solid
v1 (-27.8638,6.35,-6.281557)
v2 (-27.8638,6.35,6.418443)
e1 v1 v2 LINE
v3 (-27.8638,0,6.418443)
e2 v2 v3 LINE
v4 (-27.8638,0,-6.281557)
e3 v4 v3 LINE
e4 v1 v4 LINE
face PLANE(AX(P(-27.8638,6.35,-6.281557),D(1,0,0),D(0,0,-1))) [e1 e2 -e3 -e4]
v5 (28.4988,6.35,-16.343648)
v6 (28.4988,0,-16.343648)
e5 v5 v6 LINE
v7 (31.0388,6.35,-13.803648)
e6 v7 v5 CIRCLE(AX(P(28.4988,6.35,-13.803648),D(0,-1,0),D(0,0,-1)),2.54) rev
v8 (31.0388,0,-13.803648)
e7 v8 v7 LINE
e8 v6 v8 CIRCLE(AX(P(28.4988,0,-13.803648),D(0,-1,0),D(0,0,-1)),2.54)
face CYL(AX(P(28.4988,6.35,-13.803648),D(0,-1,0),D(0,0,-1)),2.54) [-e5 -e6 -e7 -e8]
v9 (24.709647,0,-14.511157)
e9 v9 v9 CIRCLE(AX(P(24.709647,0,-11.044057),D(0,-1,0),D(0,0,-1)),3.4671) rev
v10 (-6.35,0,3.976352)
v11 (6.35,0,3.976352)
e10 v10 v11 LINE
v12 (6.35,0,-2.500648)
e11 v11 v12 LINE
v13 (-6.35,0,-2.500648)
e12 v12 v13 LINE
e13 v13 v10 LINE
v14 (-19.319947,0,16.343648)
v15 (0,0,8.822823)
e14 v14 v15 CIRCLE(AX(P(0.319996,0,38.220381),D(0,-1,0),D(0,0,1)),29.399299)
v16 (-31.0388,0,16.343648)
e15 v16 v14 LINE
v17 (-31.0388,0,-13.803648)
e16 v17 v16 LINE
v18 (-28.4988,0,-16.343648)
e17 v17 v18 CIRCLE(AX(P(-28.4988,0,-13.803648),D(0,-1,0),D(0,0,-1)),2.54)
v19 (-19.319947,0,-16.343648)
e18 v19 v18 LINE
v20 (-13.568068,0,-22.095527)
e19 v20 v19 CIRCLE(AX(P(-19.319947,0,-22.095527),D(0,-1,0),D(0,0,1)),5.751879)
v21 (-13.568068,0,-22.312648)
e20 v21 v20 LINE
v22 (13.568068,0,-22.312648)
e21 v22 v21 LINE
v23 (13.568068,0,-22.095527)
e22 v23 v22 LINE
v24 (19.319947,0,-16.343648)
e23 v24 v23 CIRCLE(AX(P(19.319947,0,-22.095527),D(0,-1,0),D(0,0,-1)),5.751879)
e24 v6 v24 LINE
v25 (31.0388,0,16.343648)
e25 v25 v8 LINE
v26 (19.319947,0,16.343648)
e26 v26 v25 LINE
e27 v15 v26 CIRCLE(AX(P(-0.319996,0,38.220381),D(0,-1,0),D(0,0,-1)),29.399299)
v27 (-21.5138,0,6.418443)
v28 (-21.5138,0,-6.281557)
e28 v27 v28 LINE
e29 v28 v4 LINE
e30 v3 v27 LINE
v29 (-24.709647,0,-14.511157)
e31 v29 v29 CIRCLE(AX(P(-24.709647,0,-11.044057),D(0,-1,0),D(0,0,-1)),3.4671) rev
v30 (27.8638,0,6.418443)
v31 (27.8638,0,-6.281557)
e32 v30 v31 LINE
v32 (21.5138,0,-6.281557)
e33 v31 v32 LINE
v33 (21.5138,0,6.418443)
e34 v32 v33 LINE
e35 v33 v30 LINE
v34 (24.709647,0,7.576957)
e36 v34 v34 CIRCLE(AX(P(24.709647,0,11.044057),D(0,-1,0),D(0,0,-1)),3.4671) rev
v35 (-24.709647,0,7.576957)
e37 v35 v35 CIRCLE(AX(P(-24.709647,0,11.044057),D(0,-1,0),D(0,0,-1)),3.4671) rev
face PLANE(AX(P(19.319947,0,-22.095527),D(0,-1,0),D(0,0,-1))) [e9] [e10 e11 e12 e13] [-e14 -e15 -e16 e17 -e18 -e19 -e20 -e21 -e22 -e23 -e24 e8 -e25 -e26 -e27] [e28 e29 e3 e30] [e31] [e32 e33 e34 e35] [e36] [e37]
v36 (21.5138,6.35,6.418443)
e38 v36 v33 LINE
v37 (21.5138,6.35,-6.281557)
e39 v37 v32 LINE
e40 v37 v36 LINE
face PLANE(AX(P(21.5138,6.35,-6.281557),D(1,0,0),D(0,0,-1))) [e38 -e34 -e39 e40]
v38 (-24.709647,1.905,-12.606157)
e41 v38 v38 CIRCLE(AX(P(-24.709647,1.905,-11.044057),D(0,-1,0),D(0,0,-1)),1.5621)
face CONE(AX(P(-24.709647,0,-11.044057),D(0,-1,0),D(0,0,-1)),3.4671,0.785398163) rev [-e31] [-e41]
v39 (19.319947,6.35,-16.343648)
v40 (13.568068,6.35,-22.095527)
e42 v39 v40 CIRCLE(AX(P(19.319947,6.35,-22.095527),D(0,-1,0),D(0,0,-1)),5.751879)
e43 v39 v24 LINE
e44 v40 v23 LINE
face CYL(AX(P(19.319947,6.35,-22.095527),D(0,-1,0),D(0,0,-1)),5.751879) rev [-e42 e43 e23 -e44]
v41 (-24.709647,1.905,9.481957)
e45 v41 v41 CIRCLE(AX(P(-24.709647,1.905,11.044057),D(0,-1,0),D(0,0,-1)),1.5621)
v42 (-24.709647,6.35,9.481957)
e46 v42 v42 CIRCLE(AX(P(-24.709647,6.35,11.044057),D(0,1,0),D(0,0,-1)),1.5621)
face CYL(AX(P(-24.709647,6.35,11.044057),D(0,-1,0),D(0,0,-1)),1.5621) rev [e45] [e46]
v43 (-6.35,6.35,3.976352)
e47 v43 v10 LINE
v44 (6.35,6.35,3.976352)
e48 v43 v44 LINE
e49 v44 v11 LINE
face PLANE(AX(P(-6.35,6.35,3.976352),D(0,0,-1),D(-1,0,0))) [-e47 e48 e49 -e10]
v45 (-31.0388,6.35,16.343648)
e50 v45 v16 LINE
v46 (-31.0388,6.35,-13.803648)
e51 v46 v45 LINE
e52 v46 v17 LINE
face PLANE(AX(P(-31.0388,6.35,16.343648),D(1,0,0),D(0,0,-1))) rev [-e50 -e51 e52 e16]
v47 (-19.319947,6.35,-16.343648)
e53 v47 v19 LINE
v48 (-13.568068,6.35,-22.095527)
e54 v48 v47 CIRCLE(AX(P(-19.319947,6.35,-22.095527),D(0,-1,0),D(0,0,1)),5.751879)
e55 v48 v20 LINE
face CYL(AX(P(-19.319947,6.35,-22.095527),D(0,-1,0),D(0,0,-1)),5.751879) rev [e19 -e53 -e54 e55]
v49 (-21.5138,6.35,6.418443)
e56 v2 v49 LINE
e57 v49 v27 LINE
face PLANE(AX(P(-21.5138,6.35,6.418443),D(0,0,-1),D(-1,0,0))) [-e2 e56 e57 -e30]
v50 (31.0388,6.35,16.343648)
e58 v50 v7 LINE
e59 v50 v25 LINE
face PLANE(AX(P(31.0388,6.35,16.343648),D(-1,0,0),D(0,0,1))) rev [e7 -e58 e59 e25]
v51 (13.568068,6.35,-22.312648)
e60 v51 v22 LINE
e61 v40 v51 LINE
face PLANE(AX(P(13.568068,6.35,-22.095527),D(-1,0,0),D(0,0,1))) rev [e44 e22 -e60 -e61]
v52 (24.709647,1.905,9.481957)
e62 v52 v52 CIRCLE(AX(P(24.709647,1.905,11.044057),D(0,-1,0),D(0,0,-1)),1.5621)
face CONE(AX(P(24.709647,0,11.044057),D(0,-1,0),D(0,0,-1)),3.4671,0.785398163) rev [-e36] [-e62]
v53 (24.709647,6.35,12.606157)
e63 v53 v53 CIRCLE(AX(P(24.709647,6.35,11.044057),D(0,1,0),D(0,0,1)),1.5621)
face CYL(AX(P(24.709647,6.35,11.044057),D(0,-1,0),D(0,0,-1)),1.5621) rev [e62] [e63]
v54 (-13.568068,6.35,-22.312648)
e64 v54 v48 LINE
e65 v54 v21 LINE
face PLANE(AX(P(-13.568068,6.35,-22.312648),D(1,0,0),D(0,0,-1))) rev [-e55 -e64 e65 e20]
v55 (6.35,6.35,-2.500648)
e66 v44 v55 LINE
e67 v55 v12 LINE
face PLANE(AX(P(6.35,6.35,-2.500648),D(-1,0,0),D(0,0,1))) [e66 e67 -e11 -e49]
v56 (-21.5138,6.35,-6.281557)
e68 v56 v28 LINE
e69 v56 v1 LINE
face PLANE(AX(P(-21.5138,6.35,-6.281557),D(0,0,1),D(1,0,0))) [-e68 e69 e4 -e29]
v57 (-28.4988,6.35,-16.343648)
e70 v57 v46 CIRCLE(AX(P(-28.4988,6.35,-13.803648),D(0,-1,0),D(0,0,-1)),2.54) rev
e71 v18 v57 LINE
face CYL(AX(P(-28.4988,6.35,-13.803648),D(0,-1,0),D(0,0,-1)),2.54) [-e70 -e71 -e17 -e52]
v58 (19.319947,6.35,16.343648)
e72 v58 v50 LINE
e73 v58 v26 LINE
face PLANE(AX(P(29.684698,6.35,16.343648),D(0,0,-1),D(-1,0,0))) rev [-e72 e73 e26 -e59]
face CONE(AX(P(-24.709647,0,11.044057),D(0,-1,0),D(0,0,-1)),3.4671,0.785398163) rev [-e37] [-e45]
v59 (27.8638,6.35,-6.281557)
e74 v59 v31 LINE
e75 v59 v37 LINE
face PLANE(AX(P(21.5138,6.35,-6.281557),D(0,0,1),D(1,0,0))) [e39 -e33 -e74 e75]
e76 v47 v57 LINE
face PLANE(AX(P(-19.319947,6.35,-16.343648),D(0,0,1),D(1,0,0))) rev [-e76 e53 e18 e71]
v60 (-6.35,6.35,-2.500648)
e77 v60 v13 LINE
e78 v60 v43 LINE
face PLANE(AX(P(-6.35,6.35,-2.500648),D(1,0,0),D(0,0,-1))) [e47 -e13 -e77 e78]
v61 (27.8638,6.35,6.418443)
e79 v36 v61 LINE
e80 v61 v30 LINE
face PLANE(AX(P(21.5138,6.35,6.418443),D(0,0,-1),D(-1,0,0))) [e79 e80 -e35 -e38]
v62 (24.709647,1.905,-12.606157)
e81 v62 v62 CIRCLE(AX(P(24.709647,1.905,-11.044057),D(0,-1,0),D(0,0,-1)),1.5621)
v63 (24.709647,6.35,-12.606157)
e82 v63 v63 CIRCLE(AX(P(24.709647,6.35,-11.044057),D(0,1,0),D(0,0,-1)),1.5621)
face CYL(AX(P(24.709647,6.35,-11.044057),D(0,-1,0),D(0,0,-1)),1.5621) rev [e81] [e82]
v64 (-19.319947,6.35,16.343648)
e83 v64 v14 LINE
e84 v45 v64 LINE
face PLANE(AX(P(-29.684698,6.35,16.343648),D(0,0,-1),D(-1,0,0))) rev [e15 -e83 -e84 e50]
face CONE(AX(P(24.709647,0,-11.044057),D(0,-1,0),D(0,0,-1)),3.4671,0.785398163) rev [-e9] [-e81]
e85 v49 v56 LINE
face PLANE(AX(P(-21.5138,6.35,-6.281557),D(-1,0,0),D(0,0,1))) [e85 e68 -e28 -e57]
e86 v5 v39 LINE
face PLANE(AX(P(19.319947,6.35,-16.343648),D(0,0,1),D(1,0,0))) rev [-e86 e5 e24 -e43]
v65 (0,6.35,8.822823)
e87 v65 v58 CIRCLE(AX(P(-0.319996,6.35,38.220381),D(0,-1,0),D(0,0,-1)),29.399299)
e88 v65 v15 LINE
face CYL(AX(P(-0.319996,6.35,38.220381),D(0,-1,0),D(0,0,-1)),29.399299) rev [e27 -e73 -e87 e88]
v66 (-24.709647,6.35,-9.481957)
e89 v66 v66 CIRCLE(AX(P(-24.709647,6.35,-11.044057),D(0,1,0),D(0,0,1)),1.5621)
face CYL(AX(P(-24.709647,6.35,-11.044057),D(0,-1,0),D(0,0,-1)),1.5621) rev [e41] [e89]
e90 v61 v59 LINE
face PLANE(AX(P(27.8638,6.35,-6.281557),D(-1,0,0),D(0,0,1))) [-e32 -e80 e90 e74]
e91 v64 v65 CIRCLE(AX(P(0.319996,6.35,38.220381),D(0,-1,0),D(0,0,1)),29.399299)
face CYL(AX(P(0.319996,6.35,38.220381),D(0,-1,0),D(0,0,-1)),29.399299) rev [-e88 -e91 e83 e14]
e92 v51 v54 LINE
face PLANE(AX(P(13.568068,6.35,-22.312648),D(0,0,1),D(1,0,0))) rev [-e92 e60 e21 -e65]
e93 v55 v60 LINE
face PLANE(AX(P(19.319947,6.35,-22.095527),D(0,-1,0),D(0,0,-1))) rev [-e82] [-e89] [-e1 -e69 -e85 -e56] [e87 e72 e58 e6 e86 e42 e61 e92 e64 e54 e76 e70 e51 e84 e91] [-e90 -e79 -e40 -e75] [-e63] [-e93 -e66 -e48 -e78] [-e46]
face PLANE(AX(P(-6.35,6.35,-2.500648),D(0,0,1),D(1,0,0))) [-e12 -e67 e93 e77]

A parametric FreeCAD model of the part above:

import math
import FreeCAD as App
import Part
import Sketcher

V = App.Vector
Q = App.Units.Quantity


def edges_at(feature, points):
    """Names of the edges that pass closest to the given points."""
    edges = feature.Shape.Edges
    near = lambda p: min(range(len(edges)), key=lambda i: edges[i].distToShape(Part.Vertex(*p))[0])
    return sorted({f"Edge{near(p) + 1}" for p in points})


def add_polygon(sketch, points):
    """Adds a closed chain of lines whose ends are joined by coincident constraints."""
    first, n = sketch.GeometryCount, len(points)
    for a, b in zip(points, points[1:] + points[:1]):
        sketch.addGeometry(Part.LineSegment(App.Vector(*a, 0), App.Vector(*b, 0)), False)
    for i in range(n):
        sketch.addConstraint(Sketcher.Constraint("Coincident", first + i, 2, first + (i + 1) % n, 1))

doc = App.newDocument("Part")
body = doc.addObject("PartDesign::Body", "Body")

sketch1 = body.newObject("Sketcher::SketchObject", "Sketch")
sketch1.AttachmentSupport = (doc.getObject("XZ_Plane"), [""])
sketch1.MapMode = "FlatFace"
sketch1.addGeometry(Part.LineSegment(V(13.57, -22.31, 0), V(-13.57, -22.31, 0)), False)
sketch1.addGeometry(Part.LineSegment(V(-13.57, -22.31, 0), V(-13.57, -22.1, 0)), False)
sketch1.addGeometry(Part.ArcOfCircle(Part.Circle(V(-19.32, -22.1, 0), V(0, 0, 1), 5.75), math.radians(0), math.radians(90)), False)
sketch1.addGeometry(Part.LineSegment(V(-19.32, -16.34, 0), V(-31.04, -16.34, 0)), False)
sketch1.addGeometry(Part.LineSegment(V(-31.04, -16.34, 0), V(-31.04, 16.34, 0)), False)
sketch1.addGeometry(Part.LineSegment(V(-31.04, 16.34, 0), V(-19.32, 16.34, 0)), False)
sketch1.addGeometry(Part.ArcOfCircle(Part.Circle(V(0.32, 38.22, 0), V(0, 0, 1), 29.4), math.radians(-132), math.radians(-91)), False)
sketch1.addGeometry(Part.ArcOfCircle(Part.Circle(V(-0.32, 38.22, 0), V(0, 0, 1), 29.4), math.radians(-89), math.radians(-48)), False)
sketch1.addGeometry(Part.LineSegment(V(19.32, 16.34, 0), V(31.04, 16.34, 0)), False)
sketch1.addGeometry(Part.LineSegment(V(31.04, 16.34, 0), V(31.04, -16.34, 0)), False)
sketch1.addGeometry(Part.LineSegment(V(31.04, -16.34, 0), V(19.32, -16.34, 0)), False)
sketch1.addGeometry(Part.ArcOfCircle(Part.Circle(V(19.32, -22.1, 0), V(0, 0, 1), 5.75), math.radians(90), math.radians(180)), False)
sketch1.addGeometry(Part.LineSegment(V(13.57, -22.1, 0), V(13.57, -22.31, 0)), False)
sketch1.addGeometry(Part.Circle(V(-24.71, 11.04, 0), V(0, 0, 1), 1.56), False)
add_polygon(sketch1, [(-21.51, 6.42), (-27.86, 6.42), (-27.86, -6.28), (-21.51, -6.28)])
sketch1.addGeometry(Part.Circle(V(24.71, 11.04, 0), V(0, 0, 1), 1.56), False)
add_polygon(sketch1, [(6.35, 3.98), (-6.35, 3.98), (-6.35, -2.5), (6.35, -2.5)])
add_polygon(sketch1, [(27.86, 6.42), (21.51, 6.42), (21.51, -6.28), (27.86, -6.28)])
sketch1.addGeometry(Part.Circle(V(-24.71, -11.04, 0), V(0, 0, 1), 1.56), False)
sketch1.addGeometry(Part.Circle(V(24.71, -11.04, 0), V(0, 0, 1), 1.56), False)
sketch1.addConstraint([
    Sketcher.Constraint("Coincident", 0, 2, 1, 1),
    Sketcher.Constraint("Tangent", 1, 2, 2, 1),
    Sketcher.Constraint("Tangent", 2, 2, 3, 1),
    Sketcher.Constraint("Coincident", 3, 2, 4, 1),
    Sketcher.Constraint("Coincident", 4, 2, 5, 1),
    Sketcher.Constraint("Coincident", 5, 2, 6, 1),
    Sketcher.Constraint("Coincident", 6, 2, 7, 1),
    Sketcher.Constraint("Coincident", 7, 2, 8, 1),
    Sketcher.Constraint("Coincident", 8, 2, 9, 1),
    Sketcher.Constraint("Coincident", 9, 2, 10, 1),
    Sketcher.Constraint("Tangent", 10, 2, 11, 1),
    Sketcher.Constraint("Tangent", 11, 2, 12, 1),
    Sketcher.Constraint("Coincident", 12, 2, 0, 1),
    Sketcher.Constraint("Horizontal", 0),
    Sketcher.Constraint("Vertical", 1),
    Sketcher.Constraint("Horizontal", 3),
    Sketcher.Constraint("Vertical", 4),
    Sketcher.Constraint("Horizontal", 5),
    Sketcher.Constraint("Horizontal", 8),
    Sketcher.Constraint("Vertical", 9),
    Sketcher.Constraint("Horizontal", 10),
    Sketcher.Constraint("Vertical", 12),
    Sketcher.Constraint("Horizontal", 14),
    Sketcher.Constraint("Vertical", 15),
    Sketcher.Constraint("Horizontal", 16),
    Sketcher.Constraint("Vertical", 17),
    Sketcher.Constraint("Horizontal", 19),
    Sketcher.Constraint("Vertical", 20),
    Sketcher.Constraint("Horizontal", 21),
    Sketcher.Constraint("Vertical", 22),
    Sketcher.Constraint("Horizontal", 23),
    Sketcher.Constraint("Vertical", 24),
    Sketcher.Constraint("Horizontal", 25),
    Sketcher.Constraint("Vertical", 26),
    Sketcher.Constraint("Equal", 6, 7),
    Sketcher.Constraint("Equal", 2, 11),
    Sketcher.Constraint("Equal", 13, 18),
    Sketcher.Constraint("Equal", 18, 27),
    Sketcher.Constraint("Equal", 27, 28),
    Sketcher.Constraint("Symmetric", 18, 3, 27, 3, -1, 1),
    Sketcher.Constraint("Symmetric", 13, 3, 28, 3, -1, 1),
    Sketcher.Constraint("Symmetric", 2, 2, 7, 2, -1, 1),
    Sketcher.Constraint("Symmetric", 4, 2, 9, 2, -1, 1),
    Sketcher.Constraint("Symmetric", 6, 3, 7, 3, -2),
    Sketcher.Constraint("Symmetric", 2, 3, 11, 3, -2),
    Sketcher.Constraint("Symmetric", 13, 3, 18, 3, -2),
    Sketcher.Constraint("Symmetric", 17, 2, 23, 2, -2),
    Sketcher.Constraint("Symmetric", 15, 2, 25, 2, -2),
    Sketcher.Constraint("Equal", 21, 15),
    Sketcher.Constraint("Diameter", 13, Q("0.123 in")),
    Sketcher.Constraint("DistanceX", 19, 2, 19, 1, Q("0.5 in")),
    Sketcher.Constraint("DistanceX", 14, 2, 14, 1, Q("0.25 in")),
    Sketcher.Constraint("DistanceY", 20, 2, 20, 1, Q("0.255 in")),
    Sketcher.Constraint("DistanceX", 19, 2, -1, 1, Q("0.25 in")),
    Sketcher.Constraint("Radius", 6, 29.399299),
    Sketcher.Constraint("DistanceX", 3, 2, -1, 1, Q("1.222 in")),
    Sketcher.Constraint("DistanceX", 14, 2, -1, 1, Q("1.097 in")),
    Sketcher.Constraint("Radius", 2, 5.751879),
    Sketcher.Constraint("DistanceY", 0, 2, 2, 2, Q("0.235 in")),
    Sketcher.Constraint("DistanceY", 27, 3, 14, 2, Q("0.6875 in")),
    Sketcher.Constraint("DistanceY", 2, 2, 20, 2, Q("0.545 in")),
    Sketcher.Constraint("DistanceX", 13, 3, 2, 3, 5.389701),
    Sketcher.Constraint("DistanceX", 0, 2, 0, 1, 27.136135),
    Sketcher.Constraint("DistanceY", 4, 1, 4, 2, 32.687296),
    Sketcher.Constraint("DistanceY", -1, 1, 6, 3, 38.220381),
    Sketcher.Constraint("DistanceY", 2, 3, 27, 3, 11.05147),
])
pad1 = body.newObject("PartDesign::Pad", "Pad")
pad1.Profile = sketch1
pad1.Length = Q("0.25 in")
pad1.Reversed = True
doc.recompute()

fillet = body.newObject("PartDesign::Fillet", "Fillet")
fillet.Base = (pad1, edges_at(pad1, [(-31.039, 3.175, -16.344), (31.039, 3.175, -16.344)]))
fillet.Radius = Q("0.1 in")
doc.recompute()

chamfer = body.newObject("PartDesign::Chamfer", "Chamfer")
chamfer.Base = (fillet, edges_at(fillet, [
    (-26.272, 0, -11.044),
    (-26.272, 0, 11.044),
    (23.148, 0, -11.044),
    (23.148, 0, 11.044),
]))
chamfer.Size = Q("0.075 in")

doc.recompute()
